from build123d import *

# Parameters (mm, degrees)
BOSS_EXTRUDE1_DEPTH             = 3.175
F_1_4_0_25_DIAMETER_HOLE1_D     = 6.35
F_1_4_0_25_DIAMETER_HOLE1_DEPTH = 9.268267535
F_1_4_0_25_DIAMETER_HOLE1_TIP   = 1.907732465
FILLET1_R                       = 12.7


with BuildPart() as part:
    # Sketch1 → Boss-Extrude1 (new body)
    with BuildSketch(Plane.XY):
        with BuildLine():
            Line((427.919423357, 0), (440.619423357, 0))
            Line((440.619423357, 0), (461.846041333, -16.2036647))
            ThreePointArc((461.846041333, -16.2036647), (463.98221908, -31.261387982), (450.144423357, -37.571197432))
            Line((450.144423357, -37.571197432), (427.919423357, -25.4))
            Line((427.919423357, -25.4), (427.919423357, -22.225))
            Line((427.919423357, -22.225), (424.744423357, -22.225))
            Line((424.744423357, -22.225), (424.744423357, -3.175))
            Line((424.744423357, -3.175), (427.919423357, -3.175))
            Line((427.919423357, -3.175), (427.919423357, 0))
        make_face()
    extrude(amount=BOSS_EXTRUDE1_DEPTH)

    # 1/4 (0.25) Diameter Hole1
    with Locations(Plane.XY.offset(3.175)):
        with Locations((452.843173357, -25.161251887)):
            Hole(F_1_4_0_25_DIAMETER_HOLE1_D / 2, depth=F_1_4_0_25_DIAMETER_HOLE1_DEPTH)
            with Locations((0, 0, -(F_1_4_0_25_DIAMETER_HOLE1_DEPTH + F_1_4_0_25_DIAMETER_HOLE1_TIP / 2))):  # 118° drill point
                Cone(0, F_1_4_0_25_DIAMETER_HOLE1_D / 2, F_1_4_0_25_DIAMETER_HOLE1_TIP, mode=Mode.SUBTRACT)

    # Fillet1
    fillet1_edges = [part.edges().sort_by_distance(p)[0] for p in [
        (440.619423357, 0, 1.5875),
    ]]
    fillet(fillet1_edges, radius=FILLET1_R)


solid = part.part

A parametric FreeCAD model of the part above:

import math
import FreeCAD as App
import Part
import Sketcher
from FreeCAD import Vector
Q = App.Units.Quantity


def edges_at(feature, points):
    """Names of the edges that pass closest to the given points."""
    edges = feature.Shape.Edges
    near = lambda p: min(range(len(edges)), key=lambda i: edges[i].distToShape(Part.Vertex(*p))[0])
    return sorted({f"Edge{near(p) + 1}" for p in points})

doc = App.newDocument("Part")
body = doc.addObject("PartDesign::Body", "Body")

sketch1 = body.newObject("Sketcher::SketchObject", "Sketch")
sketch1.AttachmentSupport = (doc.getObject("XY_Plane"), [""])
sketch1.MapMode = "FlatFace"
sketch1.addGeometry(Part.LineSegment(Vector(440.6, 0, 0), Vector(427.9, 0, 0)), False)
sketch1.addGeometry(Part.LineSegment(Vector(427.9, 0, 0), Vector(427.9, -3.2, 0)), False)
sketch1.addGeometry(Part.LineSegment(Vector(427.9, -3.2, 0), Vector(424.7, -3.2, 0)), False)
sketch1.addGeometry(Part.LineSegment(Vector(424.7, -3.2, 0), Vector(424.7, -22.2, 0)), False)
sketch1.addGeometry(Part.LineSegment(Vector(424.7, -22.2, 0), Vector(427.9, -22.2, 0)), False)
sketch1.addGeometry(Part.LineSegment(Vector(427.9, -22.2, 0), Vector(427.9, -25.4, 0)), False)
sketch1.addGeometry(Part.LineSegment(Vector(427.9, -25.4, 0), Vector(450.1, -37.6, 0)), False)
sketch1.addGeometry(Part.ArcOfCircle(Part.Circle(Vector(452.8, -25.2, 0), Vector(0, 0, 1), 12.7), math.radians(-102), math.radians(45)), False)
sketch1.addGeometry(Part.LineSegment(Vector(461.8, -16.2, 0), Vector(440.6, 0, 0)), False)
sketch1.addConstraint(Sketcher.Constraint("Coincident", 0, 2, 1, 1))
sketch1.addConstraint(Sketcher.Constraint("Coincident", 1, 2, 2, 1))
sketch1.addConstraint(Sketcher.Constraint("Coincident", 2, 2, 3, 1))
sketch1.addConstraint(Sketcher.Constraint("Coincident", 3, 2, 4, 1))
sketch1.addConstraint(Sketcher.Constraint("Coincident", 4, 2, 5, 1))
sketch1.addConstraint(Sketcher.Constraint("Coincident", 5, 2, 6, 1))
sketch1.addConstraint(Sketcher.Constraint("Coincident", 6, 2, 7, 1))
sketch1.addConstraint(Sketcher.Constraint("Coincident", 7, 2, 8, 1))
sketch1.addConstraint(Sketcher.Constraint("Coincident", 8, 2, 0, 1))
sketch1.addConstraint(Sketcher.Constraint("Horizontal", 0))
sketch1.addConstraint(Sketcher.Constraint("Vertical", 1))
sketch1.addConstraint(Sketcher.Constraint("Horizontal", 2))
sketch1.addConstraint(Sketcher.Constraint("Vertical", 3))
sketch1.addConstraint(Sketcher.Constraint("Horizontal", 4))
sketch1.addConstraint(Sketcher.Constraint("Vertical", 5))
sketch1.addConstraint(Sketcher.Constraint("PointOnObject", 0, 2, -1))
sketch1.addConstraint(Sketcher.Constraint("Vertical", 1, 2, 4, 2))
sketch1.addConstraint(Sketcher.Constraint("Equal", 4, 1))
sketch1.addConstraint(Sketcher.Constraint("Equal", 1, 5))
sketch1.addConstraint(Sketcher.Constraint("Radius", 7, Q("0.5 in")))
sketch1.addConstraint(Sketcher.Constraint("DistanceX", 0, 2, 0, 1, Q("0.5 in")))
sketch1.addConstraint(Sketcher.Constraint("DistanceY", 5, 2, -1, 1, Q("1 in")))
sketch1.addConstraint(Sketcher.Constraint("DistanceX", 3, 2, 6, 2, Q("1 in")))
sketch1.addConstraint(Sketcher.Constraint("DistanceY", 3, 2, 3, 1, Q("0.75 in")))
sketch1.addConstraint(Sketcher.Constraint("Distance", 6, 25.339469))
sketch1.addConstraint(Sketcher.Constraint("DistanceY", 7, 3, -1, 1, 25.161252))
sketch1.addConstraint(Sketcher.Constraint("DistanceX", -1, 1, 7, 2, 461.846041))
sketch1.addConstraint(Sketcher.Constraint("Distance", 8, 26.704458))
pad1 = body.newObject("PartDesign::Pad", "Pad")
pad1.Profile = sketch1
pad1.Length = Q("0.125 in")

sketch2 = body.newObject("Sketcher::SketchObject", "Sketch001")
sketch2.AttachmentSupport = (doc.getObject("XY_Plane"), [""])
sketch2.MapMode = "FlatFace"
sketch2.AttachmentOffset = App.Placement(Vector(0, 0, 0.125 * 25.4), App.Rotation())
sketch2.addGeometry(Part.Circle(Vector(452.8, -25.2, 0), Vector(0, 0, 1), 3.2), False)
sketch2.addConstraint(Sketcher.Constraint("Diameter", 0, Q("0.25 in")))
sketch2.addConstraint(Sketcher.Constraint("DistanceY", 0, 3, -1, 1, 25.161252))
sketch2.addConstraint(Sketcher.Constraint("DistanceX", -1, 1, 0, 3, 452.843173))
doc.recompute()
hole = body.newObject("PartDesign::Hole", "Hole")
hole.Profile = sketch2
hole.ThreadType = "None"
hole.Diameter = Q("0.25 in")
hole.DepthType = "Dimension"
hole.Depth = 9.268268
hole.DrillPoint = "Angled"
hole.DrillPointAngle = 118
doc.recompute()

fillet = body.newObject("PartDesign::Fillet", "Fillet")
fillet.Base = (hole, edges_at(hole, [(440.619, 0, 1.587)]))
fillet.Radius = Q("0.5 in")

doc.recompute()
